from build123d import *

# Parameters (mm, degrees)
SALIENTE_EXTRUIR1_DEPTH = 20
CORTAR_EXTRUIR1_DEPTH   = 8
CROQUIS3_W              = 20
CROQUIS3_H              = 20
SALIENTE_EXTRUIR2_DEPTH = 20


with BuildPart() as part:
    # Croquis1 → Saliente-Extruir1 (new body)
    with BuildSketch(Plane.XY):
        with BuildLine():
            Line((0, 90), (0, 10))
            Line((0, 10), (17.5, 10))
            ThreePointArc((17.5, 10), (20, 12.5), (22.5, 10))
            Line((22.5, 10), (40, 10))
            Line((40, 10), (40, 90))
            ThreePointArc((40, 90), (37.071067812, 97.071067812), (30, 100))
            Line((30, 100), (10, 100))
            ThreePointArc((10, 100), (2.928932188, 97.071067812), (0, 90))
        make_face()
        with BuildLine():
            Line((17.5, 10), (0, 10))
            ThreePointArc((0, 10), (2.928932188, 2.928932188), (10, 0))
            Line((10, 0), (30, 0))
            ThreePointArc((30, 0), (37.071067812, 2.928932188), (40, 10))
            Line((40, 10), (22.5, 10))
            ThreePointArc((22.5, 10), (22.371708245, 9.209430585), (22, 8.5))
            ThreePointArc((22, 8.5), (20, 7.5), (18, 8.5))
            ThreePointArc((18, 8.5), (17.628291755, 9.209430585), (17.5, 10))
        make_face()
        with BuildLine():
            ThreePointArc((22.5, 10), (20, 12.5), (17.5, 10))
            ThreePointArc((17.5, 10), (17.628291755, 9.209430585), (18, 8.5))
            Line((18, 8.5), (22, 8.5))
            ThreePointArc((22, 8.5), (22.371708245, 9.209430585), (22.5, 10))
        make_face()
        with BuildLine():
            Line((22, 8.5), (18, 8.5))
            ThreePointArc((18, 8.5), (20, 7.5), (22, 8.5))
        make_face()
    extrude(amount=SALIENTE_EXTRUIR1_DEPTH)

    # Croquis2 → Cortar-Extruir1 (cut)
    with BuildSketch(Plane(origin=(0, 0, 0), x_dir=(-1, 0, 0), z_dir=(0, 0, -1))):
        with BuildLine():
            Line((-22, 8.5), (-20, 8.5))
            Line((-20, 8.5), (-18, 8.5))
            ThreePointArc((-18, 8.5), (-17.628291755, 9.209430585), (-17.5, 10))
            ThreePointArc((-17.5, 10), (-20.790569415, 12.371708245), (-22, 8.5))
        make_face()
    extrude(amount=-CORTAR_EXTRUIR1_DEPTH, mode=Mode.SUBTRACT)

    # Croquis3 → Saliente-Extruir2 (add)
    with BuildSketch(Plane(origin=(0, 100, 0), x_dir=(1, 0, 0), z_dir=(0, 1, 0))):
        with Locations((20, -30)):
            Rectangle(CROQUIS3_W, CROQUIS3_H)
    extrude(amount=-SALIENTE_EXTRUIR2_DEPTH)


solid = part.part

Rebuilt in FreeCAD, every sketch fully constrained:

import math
import FreeCAD as App
import Part
import Sketcher

V = App.Vector


def add_polygon(sketch, points):
    """Adds a closed chain of lines whose ends are joined by coincident constraints."""
    first, n = sketch.GeometryCount, len(points)
    for a, b in zip(points, points[1:] + points[:1]):
        sketch.addGeometry(Part.LineSegment(App.Vector(*a, 0), App.Vector(*b, 0)), False)
    for i in range(n):
        sketch.addConstraint(Sketcher.Constraint("Coincident", first + i, 2, first + (i + 1) % n, 1))

doc = App.newDocument("Part")
params = doc.addObject("Spreadsheet::Sheet", "Params")
for row, (alias, value) in enumerate([
    ("sketch1_radius", "10 mm"),
    ("sketch1_width", "20 mm"),
    ("sketch1_height", "80 mm"),
    ("pad1_length", "20 mm"),
    ("sketch2_radius", "2.5 mm"),
    ("sketch2_width", "4 mm"),
    ("pocket1_length", "8 mm"),
    ("sketch3_width", "20 mm"),
    ("pad2_length", "20 mm"),
], start=1):
    params.set(f"A{row}", alias)
    params.set(f"B{row}", "=" + value)
    params.setAlias(f"B{row}", alias)

body = doc.addObject("PartDesign::Body", "Body")

sketch1 = doc.addObject("Sketcher::SketchObject", "Sketch")
body.addObject(sketch1)
sketch1.AttachmentSupport = (doc.XY_Plane, [""])
sketch1.MapMode = "FlatFace"
sketch1.addGeometry([
    Part.LineSegment(V(0, 90, 0), V(0, 10, 0)),
    Part.ArcOfCircle(Part.Circle(V(10, 10, 0), V(0, 0, 1), 10), math.radians(180), math.radians(270)),
    Part.LineSegment(V(10, 0, 0), V(30, 0, 0)),
    Part.ArcOfCircle(Part.Circle(V(30, 10, 0), V(0, 0, 1), 10), math.radians(-90), math.radians(0)),
    Part.LineSegment(V(40, 10, 0), V(40, 90, 0)),
    Part.ArcOfCircle(Part.Circle(V(30, 90, 0), V(0, 0, 1), 10), math.radians(0), math.radians(90)),
    Part.LineSegment(V(30, 100, 0), V(10, 100, 0)),
    Part.ArcOfCircle(Part.Circle(V(10, 90, 0), V(0, 0, 1), 10), math.radians(90), math.radians(180)),
], False)
sketch1.addConstraint([
    Sketcher.Constraint("Tangent", 0, 2, 1, 1),
    Sketcher.Constraint("Tangent", 1, 2, 2, 1),
    Sketcher.Constraint("Tangent", 2, 2, 3, 1),
    Sketcher.Constraint("Tangent", 3, 2, 4, 1),
    Sketcher.Constraint("Tangent", 4, 2, 5, 1),
    Sketcher.Constraint("Tangent", 5, 2, 6, 1),
    Sketcher.Constraint("Tangent", 6, 2, 7, 1),
    Sketcher.Constraint("Tangent", 7, 2, 0, 1),
    Sketcher.Constraint("Vertical", 0),
    Sketcher.Constraint("Horizontal", 2),
    Sketcher.Constraint("Vertical", 4),
    Sketcher.Constraint("Horizontal", 6),
    Sketcher.Constraint("Equal", 1, 3),
    Sketcher.Constraint("Equal", 3, 5),
    Sketcher.Constraint("Equal", 5, 7),
    Sketcher.Constraint("PointOnObject", 0, 2, -2),
    Sketcher.Constraint("PointOnObject", 1, 2, -1),
    Sketcher.Constraint("Radius", 1, 10.0),
    Sketcher.Constraint("DistanceX", 2, 1, 2, 2, 20.0),
    Sketcher.Constraint("DistanceY", 0, 2, 0, 1, 80.0),
])
sketch1.setExpression("Constraints[17]", "Params.sketch1_radius")
sketch1.setExpression("Constraints[18]", "Params.sketch1_width")
sketch1.setExpression("Constraints[19]", "Params.sketch1_height")
pad1 = doc.addObject("PartDesign::Pad", "Pad")
body.addObject(pad1)
pad1.Profile = sketch1
pad1.setExpression("Length", "Params.pad1_length")

sketch2 = doc.addObject("Sketcher::SketchObject", "Sketch001")
body.addObject(sketch2)
sketch2.AttachmentSupport = (doc.XY_Plane, [""])
sketch2.MapMode = "FlatFace"
sketch2.addGeometry([
    Part.LineSegment(V(22, 8.5, 0), V(18, 8.5, 0)),
    Part.ArcOfCircle(Part.Circle(V(20, 10, 0), V(0, 0, 1), 2.5), math.radians(-180), math.radians(-143.130102)),
    Part.ArcOfCircle(Part.Circle(V(20, 10, 0), V(0, 0, 1), 2.5), math.radians(-36.869898), math.radians(180)),
], False)
sketch2.addConstraint([
    Sketcher.Constraint("Coincident", 0, 2, 1, 2),
    Sketcher.Constraint("Tangent", 1, 1, 2, 2),
    Sketcher.Constraint("Coincident", 2, 1, 0, 1),
    Sketcher.Constraint("Horizontal", 0),
    Sketcher.Constraint("Equal", 1, 2),
    Sketcher.Constraint("Horizontal", 2, 3, 1, 1),
    Sketcher.Constraint("Radius", 1, 2.5),
    Sketcher.Constraint("DistanceX", 0, 2, 0, 1, 4.0),
    Sketcher.Constraint("DistanceX", -1, 1, 1, 3, 20.0),
    Sketcher.Constraint("DistanceY", -1, 1, 1, 3, 10.0),
])
sketch2.setExpression("Constraints[6]", "Params.sketch2_radius")
sketch2.setExpression("Constraints[7]", "Params.sketch2_width")
pocket1 = doc.addObject("PartDesign::Pocket", "Pocket")
body.addObject(pocket1)
pocket1.Profile = sketch2
pocket1.setExpression("Length", "Params.pocket1_length")
pocket1.Reversed = True

sketch3 = doc.addObject("Sketcher::SketchObject", "Sketch002")
body.addObject(sketch3)
sketch3.AttachmentSupport = (doc.XZ_Plane, [""])
sketch3.MapMode = "FlatFace"
sketch3.AttachmentOffset = App.Placement(V(0, 0, -100), App.Rotation())
add_polygon(sketch3, [(10, 20), (10, 40), (30, 40), (30, 20)])
sketch3.addConstraint([
    Sketcher.Constraint("Vertical", 0),
    Sketcher.Constraint("Horizontal", 1),
    Sketcher.Constraint("Vertical", 2),
    Sketcher.Constraint("Horizontal", 3),
    Sketcher.Constraint("Equal", 3, 0),
    Sketcher.Constraint("DistanceX", 1, 1, 1, 2, 20.0),
    Sketcher.Constraint("DistanceX", -1, 1, 0, 2, 10.0),
    Sketcher.Constraint("DistanceY", -1, 1, 0, 2, 40.0),
])
sketch3.setExpression("Constraints[9]", "Params.sketch3_width")
pad2 = doc.addObject("PartDesign::Pad", "Pad001")
body.addObject(pad2)
pad2.Profile = sketch3
pad2.setExpression("Length", "Params.pad2_length")

doc.recompute()
